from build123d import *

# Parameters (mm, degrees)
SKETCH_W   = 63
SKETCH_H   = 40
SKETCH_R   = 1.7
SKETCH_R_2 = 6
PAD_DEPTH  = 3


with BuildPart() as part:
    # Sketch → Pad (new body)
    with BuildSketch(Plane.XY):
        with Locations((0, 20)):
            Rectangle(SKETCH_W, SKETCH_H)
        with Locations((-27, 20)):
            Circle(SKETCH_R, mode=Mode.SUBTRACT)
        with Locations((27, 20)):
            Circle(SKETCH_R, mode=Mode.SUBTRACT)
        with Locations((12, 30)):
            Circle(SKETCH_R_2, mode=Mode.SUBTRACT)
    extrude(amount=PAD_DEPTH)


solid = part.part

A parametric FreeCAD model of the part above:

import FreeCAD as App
import Part
import Sketcher

V = App.Vector

doc = App.newDocument("Part")
body = doc.addObject("PartDesign::Body", "Body")

sketch1 = body.newObject("Sketcher::SketchObject", "Sketch")
sketch1.AttachmentSupport = (doc.getObject("XY_Plane"), [""])
sketch1.MapMode = "FlatFace"
sketch1.addGeometry([
    Part.LineSegment(V(-31.5, 40, 0), V(-31.5, 0, 0)),
    Part.LineSegment(V(-31.5, 0, 0), V(31.5, 0, 0)),
    Part.LineSegment(V(31.5, 0, 0), V(31.5, 40, 0)),
    Part.LineSegment(V(31.5, 40, 0), V(-31.5, 40, 0)),
    Part.Circle(V(-27, 20, 0), V(0, 0, 1), 1.7),
    Part.Circle(V(27, 20, 0), V(0, 0, 1), 1.7),
    Part.Circle(V(12, 30, 0), V(0, 0, 1), 6),
], False)
sketch1.addConstraint([
    Sketcher.Constraint("Coincident", 0, 2, 1, 1),
    Sketcher.Constraint("Coincident", 1, 2, 2, 1),
    Sketcher.Constraint("Coincident", 2, 2, 3, 1),
    Sketcher.Constraint("Coincident", 3, 2, 0, 1),
    Sketcher.Constraint("Vertical", 0),
    Sketcher.Constraint("Horizontal", 1),
    Sketcher.Constraint("Vertical", 2),
    Sketcher.Constraint("Horizontal", 3),
    Sketcher.Constraint("Equal", 4, 5),
    Sketcher.Constraint("Symmetric", 0, 2, 1, 2, -1, 1),
    Sketcher.Constraint("Symmetric", 4, 3, 5, 3, -2),
    Sketcher.Constraint("Diameter", 6, 12.0),
    Sketcher.Constraint("Diameter", 4, 3.4),
    Sketcher.Constraint("DistanceX", 1, 1, 1, 2, 63.0),
    Sketcher.Constraint("DistanceY", 0, 2, 0, 1, 40.0),
    Sketcher.Constraint("DistanceX", 4, 3, -1, 1, 27.0),
    Sketcher.Constraint("DistanceY", -1, 1, 4, 3, 20.0),
    Sketcher.Constraint("DistanceX", -1, 1, 6, 3, 12.0),
    Sketcher.Constraint("DistanceY", -1, 1, 6, 3, 30.0),
])
pad1 = body.newObject("PartDesign::Pad", "Pad")
pad1.Profile = sketch1
pad1.Length = 3

doc.recompute()
